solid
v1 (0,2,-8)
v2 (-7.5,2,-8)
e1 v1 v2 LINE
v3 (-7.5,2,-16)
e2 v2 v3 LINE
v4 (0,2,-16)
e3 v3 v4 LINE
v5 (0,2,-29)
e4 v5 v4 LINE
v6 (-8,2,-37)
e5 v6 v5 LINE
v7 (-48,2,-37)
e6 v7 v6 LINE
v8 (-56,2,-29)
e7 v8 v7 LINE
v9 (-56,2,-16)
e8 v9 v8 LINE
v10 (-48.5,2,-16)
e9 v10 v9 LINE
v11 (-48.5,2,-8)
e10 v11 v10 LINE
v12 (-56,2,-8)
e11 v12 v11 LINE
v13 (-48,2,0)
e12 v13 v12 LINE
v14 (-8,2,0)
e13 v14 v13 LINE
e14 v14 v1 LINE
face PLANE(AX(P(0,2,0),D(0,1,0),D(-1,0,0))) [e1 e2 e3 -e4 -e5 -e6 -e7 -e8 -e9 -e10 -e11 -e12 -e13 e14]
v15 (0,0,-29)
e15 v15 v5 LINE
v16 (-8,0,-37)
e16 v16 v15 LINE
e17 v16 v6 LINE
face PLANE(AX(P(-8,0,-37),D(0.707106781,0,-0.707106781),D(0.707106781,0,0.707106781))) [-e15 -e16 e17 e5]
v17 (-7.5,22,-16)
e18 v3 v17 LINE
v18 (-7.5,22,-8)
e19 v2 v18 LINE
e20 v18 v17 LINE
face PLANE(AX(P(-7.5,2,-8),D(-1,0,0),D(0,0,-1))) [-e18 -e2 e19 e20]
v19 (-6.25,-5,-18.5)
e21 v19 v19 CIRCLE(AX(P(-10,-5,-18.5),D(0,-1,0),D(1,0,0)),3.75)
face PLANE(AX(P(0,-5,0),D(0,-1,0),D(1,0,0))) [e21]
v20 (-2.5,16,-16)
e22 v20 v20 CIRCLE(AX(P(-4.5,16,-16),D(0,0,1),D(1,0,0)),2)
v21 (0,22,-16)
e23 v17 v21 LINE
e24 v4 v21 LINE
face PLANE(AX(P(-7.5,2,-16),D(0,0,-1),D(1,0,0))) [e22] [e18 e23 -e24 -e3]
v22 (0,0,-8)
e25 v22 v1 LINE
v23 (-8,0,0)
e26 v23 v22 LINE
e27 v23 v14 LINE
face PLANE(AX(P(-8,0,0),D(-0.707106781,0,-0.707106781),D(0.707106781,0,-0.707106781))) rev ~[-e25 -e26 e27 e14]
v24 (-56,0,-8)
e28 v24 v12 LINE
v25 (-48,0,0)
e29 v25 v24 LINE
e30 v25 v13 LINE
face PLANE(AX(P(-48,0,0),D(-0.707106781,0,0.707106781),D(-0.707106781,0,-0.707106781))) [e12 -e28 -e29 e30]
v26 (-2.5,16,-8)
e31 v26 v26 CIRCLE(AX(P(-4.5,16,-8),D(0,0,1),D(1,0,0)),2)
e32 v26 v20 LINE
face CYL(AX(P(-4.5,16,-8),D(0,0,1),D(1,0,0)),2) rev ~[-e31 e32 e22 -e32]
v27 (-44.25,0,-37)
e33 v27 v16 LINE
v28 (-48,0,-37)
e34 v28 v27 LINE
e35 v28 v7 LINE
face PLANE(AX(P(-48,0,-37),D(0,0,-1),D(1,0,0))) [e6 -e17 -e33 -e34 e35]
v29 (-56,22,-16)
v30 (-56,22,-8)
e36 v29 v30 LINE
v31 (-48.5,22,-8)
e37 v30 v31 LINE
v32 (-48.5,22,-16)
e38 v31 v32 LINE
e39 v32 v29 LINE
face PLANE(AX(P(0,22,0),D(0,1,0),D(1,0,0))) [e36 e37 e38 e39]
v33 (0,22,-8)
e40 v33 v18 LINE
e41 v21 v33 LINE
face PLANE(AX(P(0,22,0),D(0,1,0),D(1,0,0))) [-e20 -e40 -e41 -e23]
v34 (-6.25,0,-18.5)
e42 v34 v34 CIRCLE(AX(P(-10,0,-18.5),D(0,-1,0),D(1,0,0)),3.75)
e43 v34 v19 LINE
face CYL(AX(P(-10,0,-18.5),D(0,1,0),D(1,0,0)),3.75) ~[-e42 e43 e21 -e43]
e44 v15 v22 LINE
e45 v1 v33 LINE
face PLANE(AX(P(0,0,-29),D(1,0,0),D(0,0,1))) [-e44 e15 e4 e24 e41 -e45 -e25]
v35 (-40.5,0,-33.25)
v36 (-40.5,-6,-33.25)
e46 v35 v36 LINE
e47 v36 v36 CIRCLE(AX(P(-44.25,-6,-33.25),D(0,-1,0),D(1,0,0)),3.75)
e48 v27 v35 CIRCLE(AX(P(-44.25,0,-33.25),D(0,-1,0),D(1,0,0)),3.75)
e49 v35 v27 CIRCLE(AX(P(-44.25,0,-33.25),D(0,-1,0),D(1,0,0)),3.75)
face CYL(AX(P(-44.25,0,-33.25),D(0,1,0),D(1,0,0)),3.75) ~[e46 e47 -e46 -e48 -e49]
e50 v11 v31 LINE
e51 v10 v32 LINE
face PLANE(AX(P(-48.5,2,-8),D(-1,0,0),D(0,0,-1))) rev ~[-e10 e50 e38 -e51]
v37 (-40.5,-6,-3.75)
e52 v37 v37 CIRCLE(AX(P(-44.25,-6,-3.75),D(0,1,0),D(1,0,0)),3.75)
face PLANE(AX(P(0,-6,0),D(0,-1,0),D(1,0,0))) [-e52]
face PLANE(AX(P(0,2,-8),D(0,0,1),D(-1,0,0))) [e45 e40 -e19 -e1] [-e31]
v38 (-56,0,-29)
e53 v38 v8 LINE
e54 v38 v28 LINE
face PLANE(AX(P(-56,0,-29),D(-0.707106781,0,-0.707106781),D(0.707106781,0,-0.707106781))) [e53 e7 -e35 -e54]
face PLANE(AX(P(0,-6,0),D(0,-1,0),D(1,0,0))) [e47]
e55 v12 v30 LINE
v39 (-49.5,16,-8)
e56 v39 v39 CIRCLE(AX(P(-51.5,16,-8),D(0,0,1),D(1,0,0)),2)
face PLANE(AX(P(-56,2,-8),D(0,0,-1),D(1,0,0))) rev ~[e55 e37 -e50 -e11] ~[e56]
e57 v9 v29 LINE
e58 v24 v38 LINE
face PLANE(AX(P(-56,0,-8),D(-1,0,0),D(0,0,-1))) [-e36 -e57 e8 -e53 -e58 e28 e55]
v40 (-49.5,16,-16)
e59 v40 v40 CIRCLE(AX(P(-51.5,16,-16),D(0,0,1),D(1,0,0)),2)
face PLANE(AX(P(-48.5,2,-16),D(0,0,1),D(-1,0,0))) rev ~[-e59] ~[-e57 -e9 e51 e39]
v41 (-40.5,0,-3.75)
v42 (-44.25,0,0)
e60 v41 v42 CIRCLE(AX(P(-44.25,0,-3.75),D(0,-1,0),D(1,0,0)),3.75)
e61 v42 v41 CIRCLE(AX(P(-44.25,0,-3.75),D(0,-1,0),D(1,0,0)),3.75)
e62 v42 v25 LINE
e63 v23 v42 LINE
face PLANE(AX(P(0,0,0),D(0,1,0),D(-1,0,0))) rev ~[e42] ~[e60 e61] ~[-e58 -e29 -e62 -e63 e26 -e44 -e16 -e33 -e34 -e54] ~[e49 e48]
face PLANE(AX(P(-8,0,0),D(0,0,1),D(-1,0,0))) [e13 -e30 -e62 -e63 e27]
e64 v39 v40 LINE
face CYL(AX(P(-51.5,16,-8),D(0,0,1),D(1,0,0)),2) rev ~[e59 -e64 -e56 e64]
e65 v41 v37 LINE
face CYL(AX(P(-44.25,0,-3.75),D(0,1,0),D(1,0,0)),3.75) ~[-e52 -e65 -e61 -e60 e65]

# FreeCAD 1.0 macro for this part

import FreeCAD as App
import Part
import Sketcher

V = App.Vector

doc = App.newDocument("Part")
params = doc.addObject("Spreadsheet::Sheet", "Params")
for row, (alias, value) in enumerate([
    ("pad1_length", "2 mm"),
    ("sketch2_height", "8 mm"),
    ("sketch2_width", "7.5 mm"),
    ("pad2_length", "20 mm"),
    ("sketch3_diameter", "4 mm"),
    ("sketch4_diameter", "7.5 mm"),
    ("pad3_length", "6 mm"),
    ("sketch5_diameter", "7.5 mm"),
    ("pad4_length", "5 mm"),
], start=1):
    params.set(f"A{row}", alias)
    params.set(f"B{row}", "=" + value)
    params.setAlias(f"B{row}", alias)

body = doc.addObject("PartDesign::Body", "Body")

sketch1 = doc.addObject("Sketcher::SketchObject", "Sketch")
body.addObject(sketch1)
sketch1.AttachmentSupport = (doc.XZ_Plane, [""])
sketch1.MapMode = "FlatFace"
sketch1.addGeometry(Part.LineSegment(V(-56, -8, 0), V(-48, 0, 0)), False)
sketch1.addGeometry(Part.LineSegment(V(-48, 0, 0), V(-8, 0, 0)), False)
sketch1.addGeometry(Part.LineSegment(V(-8, 0, 0), V(0, -8, 0)), False)
sketch1.addGeometry(Part.LineSegment(V(0, -8, 0), V(0, -29, 0)), False)
sketch1.addGeometry(Part.LineSegment(V(0, -29, 0), V(-8, -37, 0)), False)
sketch1.addGeometry(Part.LineSegment(V(-8, -37, 0), V(-48, -37, 0)), False)
sketch1.addGeometry(Part.LineSegment(V(-48, -37, 0), V(-56, -29, 0)), False)
sketch1.addGeometry(Part.LineSegment(V(-56, -29, 0), V(-56, -8, 0)), False)
sketch1.addConstraint(Sketcher.Constraint("Coincident", 0, 2, 1, 1))
sketch1.addConstraint(Sketcher.Constraint("Coincident", 1, 2, 2, 1))
sketch1.addConstraint(Sketcher.Constraint("Coincident", 2, 2, 3, 1))
sketch1.addConstraint(Sketcher.Constraint("Coincident", 3, 2, 4, 1))
sketch1.addConstraint(Sketcher.Constraint("Coincident", 4, 2, 5, 1))
sketch1.addConstraint(Sketcher.Constraint("Coincident", 5, 2, 6, 1))
sketch1.addConstraint(Sketcher.Constraint("Coincident", 6, 2, 7, 1))
sketch1.addConstraint(Sketcher.Constraint("Coincident", 7, 2, 0, 1))
sketch1.addConstraint(Sketcher.Constraint("Horizontal", 1))
sketch1.addConstraint(Sketcher.Constraint("Vertical", 3))
sketch1.addConstraint(Sketcher.Constraint("Horizontal", 5))
sketch1.addConstraint(Sketcher.Constraint("Vertical", 7))
sketch1.addConstraint(Sketcher.Constraint("PointOnObject", 0, 2, -1))
sketch1.addConstraint(Sketcher.Constraint("PointOnObject", 2, 2, -2))
sketch1.addConstraint(Sketcher.Constraint("Perpendicular", 0, 2))
sketch1.addConstraint(Sketcher.Constraint("Perpendicular", 2, 4))
sketch1.addConstraint(Sketcher.Constraint("Perpendicular", 4, 6))
sketch1.addConstraint(Sketcher.Constraint("Horizontal", 3, 2, 6, 2))
sketch1.addConstraint(Sketcher.Constraint("Horizontal", 2, 2, 7, 2))
sketch1.addConstraint(Sketcher.Constraint("Vertical", 1, 2, 4, 2))
sketch1.addConstraint(Sketcher.Constraint("Vertical", 0, 2, 5, 2))
sketch1.addConstraint(Sketcher.Constraint("DistanceX", 1, 2, -1, 1, 8.0))
sketch1.addConstraint(Sketcher.Constraint("DistanceY", 4, 2, -1, 1, 37.0))
sketch1.addConstraint(Sketcher.Constraint("DistanceX", 6, 2, -1, 1, 56.0))
pad1 = doc.addObject("PartDesign::Pad", "Pad")
body.addObject(pad1)
pad1.Profile = sketch1
pad1.setExpression("Length", "Params.pad1_length")
pad1.Reversed = True

sketch2 = doc.addObject("Sketcher::SketchObject", "Sketch001")
body.addObject(sketch2)
sketch2.AttachmentSupport = (doc.XZ_Plane, [""])
sketch2.MapMode = "FlatFace"
sketch2.AttachmentOffset = App.Placement(V(0, 0, -2), App.Rotation())
sketch2.addGeometry(Part.LineSegment(V(-48, -16, 0), V(-56, -16, 0)), False)
sketch2.addGeometry(Part.LineSegment(V(-56, -16, 0), V(-56, -8, 0)), False)
sketch2.addGeometry(Part.LineSegment(V(-56, -8, 0), V(-48, -8, 0)), False)
sketch2.addGeometry(Part.LineSegment(V(-48, -8, 0), V(-48, -16, 0)), False)
sketch2.addGeometry(Part.LineSegment(V(-8, -8, 0), V(0, -8, 0)), False)
sketch2.addGeometry(Part.LineSegment(V(0, -8, 0), V(0, -16, 0)), False)
sketch2.addGeometry(Part.LineSegment(V(0, -16, 0), V(-8, -16, 0)), False)
sketch2.addGeometry(Part.LineSegment(V(-8, -16, 0), V(-8, -8, 0)), False)
sketch2.addConstraint(Sketcher.Constraint("Coincident", 0, 2, 1, 1))
sketch2.addConstraint(Sketcher.Constraint("Coincident", 1, 2, 2, 1))
sketch2.addConstraint(Sketcher.Constraint("Coincident", 2, 2, 3, 1))
sketch2.addConstraint(Sketcher.Constraint("Coincident", 3, 2, 0, 1))
sketch2.addConstraint(Sketcher.Constraint("Coincident", 4, 2, 5, 1))
sketch2.addConstraint(Sketcher.Constraint("Coincident", 5, 2, 6, 1))
sketch2.addConstraint(Sketcher.Constraint("Coincident", 6, 2, 7, 1))
sketch2.addConstraint(Sketcher.Constraint("Coincident", 7, 2, 4, 1))
sketch2.addConstraint(Sketcher.Constraint("Horizontal", 0))
sketch2.addConstraint(Sketcher.Constraint("Vertical", 1))
sketch2.addConstraint(Sketcher.Constraint("Horizontal", 2))
sketch2.addConstraint(Sketcher.Constraint("Vertical", 3))
sketch2.addConstraint(Sketcher.Constraint("Horizontal", 4))
sketch2.addConstraint(Sketcher.Constraint("Vertical", 5))
sketch2.addConstraint(Sketcher.Constraint("Horizontal", 6))
sketch2.addConstraint(Sketcher.Constraint("Vertical", 7))
sketch2.addConstraint(Sketcher.Constraint("PointOnObject", 4, 2, -2))
sketch2.addConstraint(Sketcher.Constraint("Horizontal", 2, 2, 4, 2))
sketch2.addConstraint(Sketcher.Constraint("Horizontal", 3, 2, 5, 2))
sketch2.addConstraint(Sketcher.Constraint("Equal", 2, 4))
sketch2.addConstraint(Sketcher.Constraint("DistanceY", 1, 1, 1, 2, 8.0))
sketch2.addConstraint(Sketcher.Constraint("DistanceX", 0, 2, 0, 1, 7.5))
sketch2.addConstraint(Sketcher.Constraint("DistanceY", 1, 2, -1, 1, 8.0))
sketch2.addConstraint(Sketcher.Constraint("DistanceX", 0, 2, -1, 1, 56.0))
sketch2.setExpression("Constraints[20]", "Params.sketch2_height")
sketch2.setExpression("Constraints[21]", "Params.sketch2_width")
pad2 = doc.addObject("PartDesign::Pad", "Pad001")
body.addObject(pad2)
pad2.Profile = sketch2
pad2.setExpression("Length", "Params.pad2_length")
pad2.Reversed = True

sketch3 = doc.addObject("Sketcher::SketchObject", "Sketch002")
body.addObject(sketch3)
sketch3.AttachmentSupport = (doc.XY_Plane, [""])
sketch3.MapMode = "FlatFace"
sketch3.AttachmentOffset = App.Placement(V(0, 0, -8), App.Rotation())
sketch3.addGeometry(Part.Circle(V(-51.5, 16, 0), V(0, 0, 1), 2), False)
sketch3.addGeometry(Part.Circle(V(-4.5, 16, 0), V(0, 0, 1), 2), False)
sketch3.addConstraint(Sketcher.Constraint("Equal", 0, 1))
sketch3.addConstraint(Sketcher.Constraint("Horizontal", 0, 3, 1, 3))
sketch3.addConstraint(Sketcher.Constraint("Diameter", 0, 4.0))
sketch3.addConstraint(Sketcher.Constraint("DistanceY", -1, 1, 0, 3, 16.0))
sketch3.addConstraint(Sketcher.Constraint("DistanceX", 0, 3, 1, 3, 47.0))
sketch3.addConstraint(Sketcher.Constraint("DistanceX", 0, 3, -1, 1, 51.5))
sketch3.setExpression("Constraints[2]", "Params.sketch3_diameter")
pocket1 = doc.addObject("PartDesign::Pocket", "Pocket")
body.addObject(pocket1)
pocket1.Profile = sketch3
pocket1.Type = "ThroughAll"

sketch4 = doc.addObject("Sketcher::SketchObject", "Sketch003")
body.addObject(sketch4)
sketch4.AttachmentSupport = (doc.XZ_Plane, [""])
sketch4.MapMode = "FlatFace"
sketch4.addGeometry(Part.Circle(V(-44.2, -3.8, 0), V(0, 0, 1), 3.8), False)
sketch4.addGeometry(Part.Circle(V(-44.2, -33.2, 0), V(0, 0, 1), 3.8), False)
sketch4.addConstraint(Sketcher.Constraint("Equal", 0, 1))
sketch4.addConstraint(Sketcher.Constraint("Vertical", 0, 3, 1, 3))
sketch4.addConstraint(Sketcher.Constraint("Diameter", 0, 7.5))
sketch4.addConstraint(Sketcher.Constraint("DistanceY", 1, 3, 0, 3, 29.5))
sketch4.addConstraint(Sketcher.Constraint("DistanceY", 0, 3, -1, 1, 3.75))
sketch4.addConstraint(Sketcher.Constraint("DistanceX", 0, 3, -1, 1, 44.25))
sketch4.setExpression("Constraints[2]", "Params.sketch4_diameter")
pad3 = doc.addObject("PartDesign::Pad", "Pad002")
body.addObject(pad3)
pad3.Profile = sketch4
pad3.setExpression("Length", "Params.pad3_length")

sketch5 = doc.addObject("Sketcher::SketchObject", "Sketch004")
body.addObject(sketch5)
sketch5.AttachmentSupport = (doc.XZ_Plane, [""])
sketch5.MapMode = "FlatFace"
sketch5.addGeometry(Part.Circle(V(-10, -18.5, 0), V(0, 0, 1), 3.8), False)
sketch5.addConstraint(Sketcher.Constraint("Diameter", 0, 7.5))
sketch5.addConstraint(Sketcher.Constraint("DistanceX", 0, 3, -1, 1, 10.0))
sketch5.addConstraint(Sketcher.Constraint("DistanceY", 0, 3, -1, 1, 18.5))
sketch5.setExpression("Constraints[0]", "Params.sketch5_diameter")
pad4 = doc.addObject("PartDesign::Pad", "Pad003")
body.addObject(pad4)
pad4.Profile = sketch5
pad4.setExpression("Length", "Params.pad4_length")

doc.recompute()
